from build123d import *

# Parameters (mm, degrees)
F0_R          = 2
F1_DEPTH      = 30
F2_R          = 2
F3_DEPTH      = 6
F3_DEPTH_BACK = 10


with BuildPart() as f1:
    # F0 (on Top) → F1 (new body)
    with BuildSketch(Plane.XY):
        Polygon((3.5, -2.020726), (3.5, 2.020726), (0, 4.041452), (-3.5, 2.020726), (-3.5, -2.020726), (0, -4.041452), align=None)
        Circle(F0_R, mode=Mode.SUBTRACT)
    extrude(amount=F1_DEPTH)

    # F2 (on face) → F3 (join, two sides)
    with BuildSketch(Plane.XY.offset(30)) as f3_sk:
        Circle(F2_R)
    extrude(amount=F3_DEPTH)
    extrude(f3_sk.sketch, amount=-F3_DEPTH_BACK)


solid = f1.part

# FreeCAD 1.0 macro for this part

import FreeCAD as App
import Part
import Sketcher
Q = App.Units.Quantity


def add_polygon(sketch, points):
    """Adds a closed chain of lines whose ends are joined by coincident constraints."""
    first, n = sketch.GeometryCount, len(points)
    for a, b in zip(points, points[1:] + points[:1]):
        sketch.addGeometry(Part.LineSegment(App.Vector(*a, 0), App.Vector(*b, 0)), False)
    for i in range(n):
        sketch.addConstraint(Sketcher.Constraint("Coincident", first + i, 2, first + (i + 1) % n, 1))

doc = App.newDocument("Part")
params = doc.addObject("Spreadsheet::Sheet", "Params")
for row, (alias, value) in enumerate([
    ("sketch1_diameter", "4 mm"),
    ("pad1_length", "30 mm"),
    ("sketch2_diameter", "4 mm"),
    ("pad2_length", "6 mm"),
    ("pad2_length2", "10 mm"),
], start=1):
    params.set(f"A{row}", alias)
    params.set(f"B{row}", "=" + value)
    params.setAlias(f"B{row}", alias)

body = doc.addObject("PartDesign::Body", "Body")

sketch1 = body.newObject("Sketcher::SketchObject", "Sketch")
sketch1.AttachmentSupport = (doc.getObject("XY_Plane"), [""])
sketch1.MapMode = "FlatFace"
add_polygon(sketch1, [(3.5, -2), (3.5, 2), (0, 4), (-3.5, 2), (-3.5, -2), (0, -4)])
sketch1.addGeometry(Part.Circle(App.Vector(0, 0, 0), App.Vector(0, 0, 1), 2), False)
sketch1.addConstraint([
    Sketcher.Constraint("Vertical", 0),
    Sketcher.Constraint("Vertical", 3),
    Sketcher.Constraint("Coincident", 6, 3, -1, 1),
    Sketcher.Constraint("Symmetric", 0, 2, 3, 2, -1, 1),
    Sketcher.Constraint("Symmetric", 1, 2, 4, 2, -1, 1),
    Sketcher.Constraint("PointOnObject", 1, 2, -2),
    Sketcher.Constraint("Parallel", 2, 5),
    Sketcher.Constraint("Horizontal", 0, 2, 2, 2),
    Sketcher.Constraint("Diameter", 6, Q("4 mm")),
    Sketcher.Constraint("Angle", 1, Q("149.999999 deg")),
    Sketcher.Constraint("DistanceX", 2, 2, 0, 2, Q("7 mm")),
    Sketcher.Constraint("DistanceY", 0, 1, 0, 2, Q("4.041452 mm")),
])
sketch1.setExpression("Constraints[14]", "Params.sketch1_diameter")
pad1 = body.newObject("PartDesign::Pad", "Pad")
pad1.Profile = sketch1
pad1.setExpression("Length", "Params.pad1_length")

sketch2 = body.newObject("Sketcher::SketchObject", "Sketch001")
sketch2.AttachmentSupport = (doc.getObject("XY_Plane"), [""])
sketch2.MapMode = "FlatFace"
sketch2.AttachmentOffset = App.Placement(App.Vector(0, 0, 30), App.Rotation())
sketch2.addGeometry(Part.Circle(App.Vector(0, 0, 0), App.Vector(0, 0, 1), 2), False)
sketch2.addConstraint([
    Sketcher.Constraint("Coincident", 0, 3, -1, 1),
    Sketcher.Constraint("Diameter", 0, Q("4 mm")),
])
sketch2.setExpression("Constraints[1]", "Params.sketch2_diameter")
pad2 = body.newObject("PartDesign::Pad", "Pad001")
pad2.Profile = sketch2
pad2.Type = "TwoLengths"
pad2.setExpression("Length", "Params.pad2_length")
pad2.setExpression("Length2", "Params.pad2_length2")

doc.recompute()
